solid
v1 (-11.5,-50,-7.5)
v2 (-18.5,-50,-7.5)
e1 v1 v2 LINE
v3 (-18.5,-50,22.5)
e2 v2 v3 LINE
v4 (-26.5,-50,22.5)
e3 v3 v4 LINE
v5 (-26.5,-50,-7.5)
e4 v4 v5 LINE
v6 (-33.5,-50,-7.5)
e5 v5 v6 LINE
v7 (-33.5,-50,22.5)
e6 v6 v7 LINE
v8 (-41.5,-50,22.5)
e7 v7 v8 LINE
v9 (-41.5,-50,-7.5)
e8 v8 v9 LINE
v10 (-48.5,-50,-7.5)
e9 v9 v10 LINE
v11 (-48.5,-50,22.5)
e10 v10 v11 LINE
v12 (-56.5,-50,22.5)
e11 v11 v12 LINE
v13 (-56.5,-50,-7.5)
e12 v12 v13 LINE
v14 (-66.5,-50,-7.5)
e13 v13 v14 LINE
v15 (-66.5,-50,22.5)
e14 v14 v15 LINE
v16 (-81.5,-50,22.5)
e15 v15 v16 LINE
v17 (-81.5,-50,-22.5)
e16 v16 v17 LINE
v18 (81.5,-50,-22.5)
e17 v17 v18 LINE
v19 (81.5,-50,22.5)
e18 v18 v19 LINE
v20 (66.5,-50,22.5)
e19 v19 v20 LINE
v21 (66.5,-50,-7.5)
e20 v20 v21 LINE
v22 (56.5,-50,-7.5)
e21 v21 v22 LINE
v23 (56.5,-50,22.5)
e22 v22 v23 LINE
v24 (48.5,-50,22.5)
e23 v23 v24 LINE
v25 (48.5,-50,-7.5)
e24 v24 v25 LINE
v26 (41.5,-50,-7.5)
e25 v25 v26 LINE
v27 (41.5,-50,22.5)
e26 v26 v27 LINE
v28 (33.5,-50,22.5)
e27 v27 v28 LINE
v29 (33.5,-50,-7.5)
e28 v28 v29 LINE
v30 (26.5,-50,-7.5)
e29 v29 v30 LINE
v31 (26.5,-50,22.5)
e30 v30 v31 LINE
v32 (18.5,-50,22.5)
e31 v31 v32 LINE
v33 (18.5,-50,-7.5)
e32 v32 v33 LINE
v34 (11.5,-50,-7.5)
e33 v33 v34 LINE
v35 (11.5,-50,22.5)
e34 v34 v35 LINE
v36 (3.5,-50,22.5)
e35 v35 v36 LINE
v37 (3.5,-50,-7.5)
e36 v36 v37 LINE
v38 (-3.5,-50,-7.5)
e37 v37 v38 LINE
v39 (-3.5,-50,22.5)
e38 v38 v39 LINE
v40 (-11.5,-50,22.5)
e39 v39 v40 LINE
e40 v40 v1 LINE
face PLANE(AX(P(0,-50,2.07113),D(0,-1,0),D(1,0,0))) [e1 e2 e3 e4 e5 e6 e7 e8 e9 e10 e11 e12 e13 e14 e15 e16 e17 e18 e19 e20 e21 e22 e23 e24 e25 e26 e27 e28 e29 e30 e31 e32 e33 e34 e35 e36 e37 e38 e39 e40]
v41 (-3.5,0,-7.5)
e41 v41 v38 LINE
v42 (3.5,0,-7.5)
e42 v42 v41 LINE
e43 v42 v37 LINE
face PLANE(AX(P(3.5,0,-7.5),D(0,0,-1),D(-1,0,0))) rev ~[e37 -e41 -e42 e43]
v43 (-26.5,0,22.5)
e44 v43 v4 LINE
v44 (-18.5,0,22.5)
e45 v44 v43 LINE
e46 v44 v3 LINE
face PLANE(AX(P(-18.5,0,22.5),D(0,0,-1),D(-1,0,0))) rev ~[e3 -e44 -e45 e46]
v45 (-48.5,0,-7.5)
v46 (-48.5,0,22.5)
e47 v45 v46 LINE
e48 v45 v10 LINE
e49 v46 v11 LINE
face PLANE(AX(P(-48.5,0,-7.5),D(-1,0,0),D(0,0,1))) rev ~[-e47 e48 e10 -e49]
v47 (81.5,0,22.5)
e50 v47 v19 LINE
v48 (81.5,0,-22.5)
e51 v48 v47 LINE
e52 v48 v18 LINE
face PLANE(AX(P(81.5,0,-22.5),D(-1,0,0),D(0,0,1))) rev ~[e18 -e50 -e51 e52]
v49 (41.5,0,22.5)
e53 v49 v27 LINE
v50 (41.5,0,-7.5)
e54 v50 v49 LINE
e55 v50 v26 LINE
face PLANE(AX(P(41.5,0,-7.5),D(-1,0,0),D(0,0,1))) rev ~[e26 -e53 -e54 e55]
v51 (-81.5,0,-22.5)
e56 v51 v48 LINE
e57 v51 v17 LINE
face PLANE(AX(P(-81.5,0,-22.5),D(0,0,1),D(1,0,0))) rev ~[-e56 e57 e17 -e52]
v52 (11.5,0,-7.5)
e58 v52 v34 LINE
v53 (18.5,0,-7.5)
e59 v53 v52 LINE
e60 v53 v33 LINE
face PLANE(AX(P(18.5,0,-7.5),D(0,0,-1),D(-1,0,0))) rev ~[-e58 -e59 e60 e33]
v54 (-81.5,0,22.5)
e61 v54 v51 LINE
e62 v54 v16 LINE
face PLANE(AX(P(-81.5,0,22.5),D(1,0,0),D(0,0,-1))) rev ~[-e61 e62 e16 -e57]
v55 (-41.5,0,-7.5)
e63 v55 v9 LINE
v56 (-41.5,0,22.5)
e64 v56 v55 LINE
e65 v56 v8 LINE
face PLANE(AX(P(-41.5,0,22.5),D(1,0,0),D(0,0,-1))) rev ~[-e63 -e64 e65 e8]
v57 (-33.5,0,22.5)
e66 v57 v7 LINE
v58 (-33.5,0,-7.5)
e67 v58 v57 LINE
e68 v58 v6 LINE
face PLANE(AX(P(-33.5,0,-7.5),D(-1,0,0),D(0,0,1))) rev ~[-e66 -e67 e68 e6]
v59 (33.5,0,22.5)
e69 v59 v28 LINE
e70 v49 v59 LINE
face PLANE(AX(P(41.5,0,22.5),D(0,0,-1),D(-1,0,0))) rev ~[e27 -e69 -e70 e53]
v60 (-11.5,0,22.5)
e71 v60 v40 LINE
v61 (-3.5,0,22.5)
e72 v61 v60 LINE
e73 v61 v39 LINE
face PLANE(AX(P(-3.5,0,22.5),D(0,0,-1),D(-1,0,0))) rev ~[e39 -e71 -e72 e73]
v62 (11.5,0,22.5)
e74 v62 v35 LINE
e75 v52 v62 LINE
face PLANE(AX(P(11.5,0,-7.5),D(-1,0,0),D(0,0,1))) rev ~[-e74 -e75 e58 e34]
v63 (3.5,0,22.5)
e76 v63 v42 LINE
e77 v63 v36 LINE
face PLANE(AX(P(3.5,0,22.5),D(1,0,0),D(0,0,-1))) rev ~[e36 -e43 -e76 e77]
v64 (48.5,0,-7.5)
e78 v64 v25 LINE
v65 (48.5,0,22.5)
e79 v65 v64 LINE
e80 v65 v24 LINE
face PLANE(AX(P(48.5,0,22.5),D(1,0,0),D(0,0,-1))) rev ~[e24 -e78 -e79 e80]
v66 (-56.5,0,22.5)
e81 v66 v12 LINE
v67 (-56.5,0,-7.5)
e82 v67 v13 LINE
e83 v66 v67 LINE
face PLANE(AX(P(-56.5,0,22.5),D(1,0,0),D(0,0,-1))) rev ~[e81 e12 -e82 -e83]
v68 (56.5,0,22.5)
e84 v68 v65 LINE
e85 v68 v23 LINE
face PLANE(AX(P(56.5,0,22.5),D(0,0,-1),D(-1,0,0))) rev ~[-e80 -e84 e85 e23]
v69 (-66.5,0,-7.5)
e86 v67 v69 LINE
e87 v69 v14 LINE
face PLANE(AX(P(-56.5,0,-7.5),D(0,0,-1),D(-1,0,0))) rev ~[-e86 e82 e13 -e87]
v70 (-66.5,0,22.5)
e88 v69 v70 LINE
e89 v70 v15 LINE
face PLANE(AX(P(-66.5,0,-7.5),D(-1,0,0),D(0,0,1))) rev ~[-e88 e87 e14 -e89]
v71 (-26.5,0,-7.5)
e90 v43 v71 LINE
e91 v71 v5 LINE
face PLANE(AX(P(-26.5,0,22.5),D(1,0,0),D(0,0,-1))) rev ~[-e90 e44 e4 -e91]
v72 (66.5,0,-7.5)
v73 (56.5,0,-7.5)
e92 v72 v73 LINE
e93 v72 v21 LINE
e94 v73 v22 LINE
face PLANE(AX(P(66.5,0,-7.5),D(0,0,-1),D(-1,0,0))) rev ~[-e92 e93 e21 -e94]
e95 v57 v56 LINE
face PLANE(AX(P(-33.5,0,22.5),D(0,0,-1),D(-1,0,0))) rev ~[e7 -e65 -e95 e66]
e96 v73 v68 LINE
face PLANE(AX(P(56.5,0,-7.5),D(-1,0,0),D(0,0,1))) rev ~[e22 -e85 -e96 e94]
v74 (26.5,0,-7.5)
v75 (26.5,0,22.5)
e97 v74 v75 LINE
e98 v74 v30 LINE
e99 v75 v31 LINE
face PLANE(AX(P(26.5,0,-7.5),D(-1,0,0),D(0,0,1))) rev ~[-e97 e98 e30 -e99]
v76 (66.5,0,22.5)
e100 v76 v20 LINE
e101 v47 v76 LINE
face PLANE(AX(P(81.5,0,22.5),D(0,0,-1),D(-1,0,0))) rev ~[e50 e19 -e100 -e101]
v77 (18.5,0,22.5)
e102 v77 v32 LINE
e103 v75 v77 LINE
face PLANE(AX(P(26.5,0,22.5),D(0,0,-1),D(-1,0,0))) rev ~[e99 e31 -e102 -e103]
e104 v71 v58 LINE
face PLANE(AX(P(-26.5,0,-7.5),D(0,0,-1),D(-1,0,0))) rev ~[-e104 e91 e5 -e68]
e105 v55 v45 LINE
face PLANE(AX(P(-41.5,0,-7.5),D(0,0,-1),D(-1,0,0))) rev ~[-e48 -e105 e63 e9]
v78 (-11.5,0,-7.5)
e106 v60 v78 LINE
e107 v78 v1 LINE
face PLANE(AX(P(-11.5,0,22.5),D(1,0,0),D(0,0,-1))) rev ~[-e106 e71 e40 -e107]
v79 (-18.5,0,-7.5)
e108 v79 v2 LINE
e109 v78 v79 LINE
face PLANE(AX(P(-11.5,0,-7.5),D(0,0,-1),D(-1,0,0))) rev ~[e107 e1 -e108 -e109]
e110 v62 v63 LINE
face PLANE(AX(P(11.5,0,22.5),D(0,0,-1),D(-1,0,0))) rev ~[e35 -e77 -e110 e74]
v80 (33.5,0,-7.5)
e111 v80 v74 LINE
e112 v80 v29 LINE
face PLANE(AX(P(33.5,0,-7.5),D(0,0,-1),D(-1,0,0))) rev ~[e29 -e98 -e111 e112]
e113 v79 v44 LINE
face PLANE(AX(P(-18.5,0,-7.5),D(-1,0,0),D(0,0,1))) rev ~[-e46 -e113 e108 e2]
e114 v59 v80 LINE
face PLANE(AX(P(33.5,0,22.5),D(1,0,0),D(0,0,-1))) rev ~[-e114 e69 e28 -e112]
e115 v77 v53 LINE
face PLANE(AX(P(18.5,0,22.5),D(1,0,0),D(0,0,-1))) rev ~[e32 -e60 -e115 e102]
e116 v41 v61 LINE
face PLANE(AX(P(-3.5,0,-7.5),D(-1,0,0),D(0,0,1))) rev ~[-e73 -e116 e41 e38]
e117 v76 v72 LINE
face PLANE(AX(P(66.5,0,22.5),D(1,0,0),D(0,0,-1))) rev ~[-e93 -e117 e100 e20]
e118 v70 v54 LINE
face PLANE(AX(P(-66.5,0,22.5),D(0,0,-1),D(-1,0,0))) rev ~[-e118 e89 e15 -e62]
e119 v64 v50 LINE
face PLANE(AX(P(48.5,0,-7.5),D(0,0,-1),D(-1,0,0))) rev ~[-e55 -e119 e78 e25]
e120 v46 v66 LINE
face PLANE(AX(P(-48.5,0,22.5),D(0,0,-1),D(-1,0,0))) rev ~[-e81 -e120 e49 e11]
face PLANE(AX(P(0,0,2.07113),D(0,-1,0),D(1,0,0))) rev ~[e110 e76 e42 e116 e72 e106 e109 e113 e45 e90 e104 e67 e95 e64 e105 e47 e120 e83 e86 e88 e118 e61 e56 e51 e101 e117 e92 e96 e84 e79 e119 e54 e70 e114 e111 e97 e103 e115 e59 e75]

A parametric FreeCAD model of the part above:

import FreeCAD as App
import Part
import Sketcher

V = App.Vector
Q = App.Units.Quantity


def add_polygon(sketch, points):
    """Adds a closed chain of lines whose ends are joined by coincident constraints."""
    first, n = sketch.GeometryCount, len(points)
    for a, b in zip(points, points[1:] + points[:1]):
        sketch.addGeometry(Part.LineSegment(App.Vector(*a, 0), App.Vector(*b, 0)), False)
    for i in range(n):
        sketch.addConstraint(Sketcher.Constraint("Coincident", first + i, 2, first + (i + 1) % n, 1))

doc = App.newDocument("Part")
body = doc.addObject("PartDesign::Body", "Body")

# Sketch on XZ plane
sketch1 = body.newObject("Sketcher::SketchObject", "Sketch")
sketch1.AttachmentSupport = (doc.getObject("XZ_Plane"), [""])
sketch1.MapMode = "FlatFace"
add_polygon(sketch1, [(-81.5, -22.5), (81.5, -22.5), (81.5, 22.5), (66.5, 22.5), (66.5, -7.5), (56.5, -7.5), (56.5, 22.5), (48.5, 22.5), (48.5, -7.5), (41.5, -7.5), (41.5, 22.5), (33.5, 22.5), (33.5, -7.5), (26.5, -7.5), (26.5, 22.5), (18.5, 22.5), (18.5, -7.5), (11.5, -7.5), (11.5, 22.5), (3.5, 22.5), (3.5, -7.5), (-3.5, -7.5), (-3.5, 22.5), (-11.5, 22.5), (-11.5, -7.5), (-18.5, -7.5), (-18.5, 22.5), (-26.5, 22.5), (-26.5, -7.5), (-33.5, -7.5), (-33.5, 22.5), (-41.5, 22.5), (-41.5, -7.5), (-48.5, -7.5), (-48.5, 22.5), (-56.5, 22.5), (-56.5, -7.5), (-66.5, -7.5), (-66.5, 22.5), (-81.5, 22.5)])  # lines 0-39
sketch1.addConstraint(Sketcher.Constraint("Horizontal", 0))
sketch1.addConstraint(Sketcher.Constraint("Vertical", 1))
sketch1.addConstraint(Sketcher.Constraint("Horizontal", 2))
sketch1.addConstraint(Sketcher.Constraint("Vertical", 3))
sketch1.addConstraint(Sketcher.Constraint("Horizontal", 4))
sketch1.addConstraint(Sketcher.Constraint("Vertical", 5))
sketch1.addConstraint(Sketcher.Constraint("Horizontal", 6))
sketch1.addConstraint(Sketcher.Constraint("Vertical", 7))
sketch1.addConstraint(Sketcher.Constraint("Horizontal", 8))
sketch1.addConstraint(Sketcher.Constraint("Vertical", 9))
sketch1.addConstraint(Sketcher.Constraint("Horizontal", 10))
sketch1.addConstraint(Sketcher.Constraint("Vertical", 11))
sketch1.addConstraint(Sketcher.Constraint("Horizontal", 12))
sketch1.addConstraint(Sketcher.Constraint("Vertical", 13))
sketch1.addConstraint(Sketcher.Constraint("Horizontal", 14))
sketch1.addConstraint(Sketcher.Constraint("Vertical", 15))
sketch1.addConstraint(Sketcher.Constraint("Horizontal", 16))
sketch1.addConstraint(Sketcher.Constraint("Vertical", 17))
sketch1.addConstraint(Sketcher.Constraint("Horizontal", 18))
sketch1.addConstraint(Sketcher.Constraint("Vertical", 19))
sketch1.addConstraint(Sketcher.Constraint("Horizontal", 20))
sketch1.addConstraint(Sketcher.Constraint("Vertical", 21))
sketch1.addConstraint(Sketcher.Constraint("Horizontal", 22))
sketch1.addConstraint(Sketcher.Constraint("Vertical", 23))
sketch1.addConstraint(Sketcher.Constraint("Horizontal", 24))
sketch1.addConstraint(Sketcher.Constraint("Vertical", 25))
sketch1.addConstraint(Sketcher.Constraint("Horizontal", 26))
sketch1.addConstraint(Sketcher.Constraint("Vertical", 27))
sketch1.addConstraint(Sketcher.Constraint("Horizontal", 28))
sketch1.addConstraint(Sketcher.Constraint("Vertical", 29))
sketch1.addConstraint(Sketcher.Constraint("Horizontal", 30))
sketch1.addConstraint(Sketcher.Constraint("Vertical", 31))
sketch1.addConstraint(Sketcher.Constraint("Horizontal", 32))
sketch1.addConstraint(Sketcher.Constraint("Vertical", 33))
sketch1.addConstraint(Sketcher.Constraint("Horizontal", 34))
sketch1.addConstraint(Sketcher.Constraint("Vertical", 35))
sketch1.addConstraint(Sketcher.Constraint("Horizontal", 36))
sketch1.addConstraint(Sketcher.Constraint("Vertical", 37))
sketch1.addConstraint(Sketcher.Constraint("Horizontal", 38))
sketch1.addConstraint(Sketcher.Constraint("Vertical", 39))
sketch1.addConstraint(Sketcher.Constraint("Symmetric", 0, 2, 38, 2, -1, 1))
sketch1.addConstraint(Sketcher.Constraint("Symmetric", 18, 2, 21, 2, -2))
sketch1.addConstraint(Sketcher.Constraint("Symmetric", 16, 2, 23, 2, -2))
sketch1.addConstraint(Sketcher.Constraint("Symmetric", 14, 2, 25, 2, -2))
sketch1.addConstraint(Sketcher.Constraint("Symmetric", 12, 2, 27, 2, -2))
sketch1.addConstraint(Sketcher.Constraint("Symmetric", 10, 2, 29, 2, -2))
sketch1.addConstraint(Sketcher.Constraint("Symmetric", 8, 2, 31, 2, -2))
sketch1.addConstraint(Sketcher.Constraint("Symmetric", 6, 2, 33, 2, -2))
sketch1.addConstraint(Sketcher.Constraint("Symmetric", 4, 2, 35, 2, -2))
sketch1.addConstraint(Sketcher.Constraint("Symmetric", 2, 2, 37, 2, -2))
sketch1.addConstraint(Sketcher.Constraint("Horizontal", 2, 2, 5, 2))
sketch1.addConstraint(Sketcher.Constraint("Horizontal", 4, 2, 7, 2))
sketch1.addConstraint(Sketcher.Constraint("Horizontal", 6, 2, 9, 2))
sketch1.addConstraint(Sketcher.Constraint("Horizontal", 8, 2, 11, 2))
sketch1.addConstraint(Sketcher.Constraint("Horizontal", 10, 2, 13, 2))
sketch1.addConstraint(Sketcher.Constraint("Horizontal", 12, 2, 15, 2))
sketch1.addConstraint(Sketcher.Constraint("Horizontal", 14, 2, 17, 2))
sketch1.addConstraint(Sketcher.Constraint("Horizontal", 16, 2, 19, 2))
sketch1.addConstraint(Sketcher.Constraint("Equal", 6, 10))
sketch1.addConstraint(Sketcher.Constraint("Equal", 8, 12))
sketch1.addConstraint(Sketcher.Constraint("Equal", 10, 14))
sketch1.addConstraint(Sketcher.Constraint("Equal", 12, 16))
sketch1.addConstraint(Sketcher.Constraint("Equal", 14, 18))
sketch1.addConstraint(Sketcher.Constraint("Equal", 16, 20))
sketch1.addConstraint(Sketcher.Constraint("DistanceX", 0, 1, 0, 2, Q("163 mm")))
sketch1.addConstraint(Sketcher.Constraint("DistanceX", 2, 2, 2, 1, Q("15 mm")))
sketch1.addConstraint(Sketcher.Constraint("DistanceX", 4, 2, 4, 1, Q("10 mm")))
sketch1.addConstraint(Sketcher.Constraint("DistanceX", 6, 2, 6, 1, Q("8 mm")))
sketch1.addConstraint(Sketcher.Constraint("DistanceY", 1, 1, 1, 2, Q("45 mm")))
sketch1.addConstraint(Sketcher.Constraint("DistanceY", 3, 2, 3, 1, Q("30 mm")))
pad1 = body.newObject("PartDesign::Pad", "Pad")
pad1.Profile = sketch1
pad1.Length = 50

doc.recompute()
